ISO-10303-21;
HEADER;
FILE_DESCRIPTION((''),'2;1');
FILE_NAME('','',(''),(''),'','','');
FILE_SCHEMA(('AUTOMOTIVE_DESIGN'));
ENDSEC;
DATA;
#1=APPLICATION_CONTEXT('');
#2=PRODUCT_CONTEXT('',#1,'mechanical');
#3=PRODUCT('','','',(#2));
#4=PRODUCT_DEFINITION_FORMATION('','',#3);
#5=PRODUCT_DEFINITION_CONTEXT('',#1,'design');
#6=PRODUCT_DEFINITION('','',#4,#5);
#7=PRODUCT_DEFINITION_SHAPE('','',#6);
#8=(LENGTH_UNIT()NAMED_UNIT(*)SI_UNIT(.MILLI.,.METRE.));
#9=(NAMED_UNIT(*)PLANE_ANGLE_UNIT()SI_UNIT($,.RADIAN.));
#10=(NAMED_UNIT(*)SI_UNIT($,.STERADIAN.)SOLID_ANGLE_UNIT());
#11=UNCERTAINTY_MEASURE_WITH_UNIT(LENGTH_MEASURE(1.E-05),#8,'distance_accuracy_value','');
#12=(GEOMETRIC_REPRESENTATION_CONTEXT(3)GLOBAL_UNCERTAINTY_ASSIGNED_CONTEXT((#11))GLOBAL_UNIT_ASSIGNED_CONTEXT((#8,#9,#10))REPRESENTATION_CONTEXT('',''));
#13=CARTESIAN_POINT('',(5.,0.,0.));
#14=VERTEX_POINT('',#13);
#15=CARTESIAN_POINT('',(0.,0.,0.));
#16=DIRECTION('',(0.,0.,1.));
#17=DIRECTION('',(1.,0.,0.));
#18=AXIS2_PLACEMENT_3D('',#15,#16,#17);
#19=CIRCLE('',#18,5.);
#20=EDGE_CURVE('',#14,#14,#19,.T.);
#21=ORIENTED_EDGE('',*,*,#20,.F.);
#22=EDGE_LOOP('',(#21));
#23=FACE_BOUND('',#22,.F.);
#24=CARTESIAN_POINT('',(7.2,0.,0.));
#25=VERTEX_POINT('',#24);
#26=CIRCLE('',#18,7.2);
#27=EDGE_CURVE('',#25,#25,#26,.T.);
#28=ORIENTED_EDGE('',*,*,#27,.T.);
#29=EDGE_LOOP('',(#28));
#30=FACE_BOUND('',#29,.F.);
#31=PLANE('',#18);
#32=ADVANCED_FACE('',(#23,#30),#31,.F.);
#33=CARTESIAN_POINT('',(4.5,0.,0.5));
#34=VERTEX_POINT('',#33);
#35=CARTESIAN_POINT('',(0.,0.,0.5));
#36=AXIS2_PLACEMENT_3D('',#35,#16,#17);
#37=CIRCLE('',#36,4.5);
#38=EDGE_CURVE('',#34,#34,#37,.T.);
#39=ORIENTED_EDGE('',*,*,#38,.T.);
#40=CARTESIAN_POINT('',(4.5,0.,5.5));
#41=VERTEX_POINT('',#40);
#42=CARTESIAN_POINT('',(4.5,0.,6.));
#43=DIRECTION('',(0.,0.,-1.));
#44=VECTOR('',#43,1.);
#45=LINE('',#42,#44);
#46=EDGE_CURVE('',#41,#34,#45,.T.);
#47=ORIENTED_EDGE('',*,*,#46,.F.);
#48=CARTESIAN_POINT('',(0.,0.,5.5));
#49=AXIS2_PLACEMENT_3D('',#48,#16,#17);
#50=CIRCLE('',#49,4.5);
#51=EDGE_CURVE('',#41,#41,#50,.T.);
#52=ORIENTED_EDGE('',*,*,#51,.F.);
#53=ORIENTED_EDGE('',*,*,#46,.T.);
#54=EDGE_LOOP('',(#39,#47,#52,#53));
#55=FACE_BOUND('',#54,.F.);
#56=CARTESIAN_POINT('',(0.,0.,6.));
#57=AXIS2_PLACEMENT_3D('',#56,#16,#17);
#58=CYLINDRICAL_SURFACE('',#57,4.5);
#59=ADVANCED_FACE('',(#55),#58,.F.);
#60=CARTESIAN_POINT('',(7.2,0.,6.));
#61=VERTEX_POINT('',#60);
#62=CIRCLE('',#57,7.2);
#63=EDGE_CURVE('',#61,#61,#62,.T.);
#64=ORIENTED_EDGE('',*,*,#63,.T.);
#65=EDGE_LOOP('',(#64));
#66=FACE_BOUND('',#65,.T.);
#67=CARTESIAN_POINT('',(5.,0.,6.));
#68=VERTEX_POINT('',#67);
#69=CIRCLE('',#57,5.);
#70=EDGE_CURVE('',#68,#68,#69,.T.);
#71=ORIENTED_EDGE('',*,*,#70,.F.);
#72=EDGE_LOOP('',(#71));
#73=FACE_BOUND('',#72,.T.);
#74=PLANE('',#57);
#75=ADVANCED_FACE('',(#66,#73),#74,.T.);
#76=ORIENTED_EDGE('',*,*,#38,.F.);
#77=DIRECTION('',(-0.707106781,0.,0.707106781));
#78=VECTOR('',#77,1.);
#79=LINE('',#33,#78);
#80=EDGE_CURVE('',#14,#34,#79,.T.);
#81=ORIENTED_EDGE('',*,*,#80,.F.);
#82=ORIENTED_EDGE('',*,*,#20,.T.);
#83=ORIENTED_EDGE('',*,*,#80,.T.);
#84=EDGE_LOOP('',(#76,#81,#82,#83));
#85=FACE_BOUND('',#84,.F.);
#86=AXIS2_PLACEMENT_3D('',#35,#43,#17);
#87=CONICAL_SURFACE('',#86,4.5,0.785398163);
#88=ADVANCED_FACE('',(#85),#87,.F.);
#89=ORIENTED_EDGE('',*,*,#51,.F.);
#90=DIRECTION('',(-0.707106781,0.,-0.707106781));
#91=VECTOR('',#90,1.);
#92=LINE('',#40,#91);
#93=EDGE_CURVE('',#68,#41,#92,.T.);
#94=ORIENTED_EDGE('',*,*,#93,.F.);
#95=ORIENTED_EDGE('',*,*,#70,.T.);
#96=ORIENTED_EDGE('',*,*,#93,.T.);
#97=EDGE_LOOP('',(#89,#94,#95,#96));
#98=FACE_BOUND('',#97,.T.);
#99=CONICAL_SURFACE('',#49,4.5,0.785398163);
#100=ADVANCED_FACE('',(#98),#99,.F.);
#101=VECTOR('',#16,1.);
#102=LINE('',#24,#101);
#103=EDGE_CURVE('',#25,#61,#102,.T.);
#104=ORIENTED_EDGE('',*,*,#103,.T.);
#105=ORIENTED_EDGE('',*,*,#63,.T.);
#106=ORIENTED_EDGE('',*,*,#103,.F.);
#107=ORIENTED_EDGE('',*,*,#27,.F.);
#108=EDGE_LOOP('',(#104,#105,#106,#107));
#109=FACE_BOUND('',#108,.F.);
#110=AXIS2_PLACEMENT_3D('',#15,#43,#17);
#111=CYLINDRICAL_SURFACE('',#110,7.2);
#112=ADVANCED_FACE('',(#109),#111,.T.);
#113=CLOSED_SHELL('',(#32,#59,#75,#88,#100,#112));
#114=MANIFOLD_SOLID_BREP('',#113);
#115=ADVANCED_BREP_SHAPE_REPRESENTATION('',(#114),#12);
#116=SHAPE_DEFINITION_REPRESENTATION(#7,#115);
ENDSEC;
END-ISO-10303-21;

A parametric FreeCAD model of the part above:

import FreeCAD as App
import Part
import Sketcher

V = App.Vector


def edges_at(feature, points):
    """Names of the edges that pass closest to the given points."""
    edges = feature.Shape.Edges
    near = lambda p: min(range(len(edges)), key=lambda i: edges[i].distToShape(Part.Vertex(*p))[0])
    return sorted({f"Edge{near(p) + 1}" for p in points})

doc = App.newDocument("Part")
body = doc.addObject("PartDesign::Body", "Body")

sketch1 = doc.addObject("Sketcher::SketchObject", "Sketch")
body.addObject(sketch1)
sketch1.AttachmentSupport = (doc.XY_Plane, [""])
sketch1.MapMode = "FlatFace"
sketch1.addGeometry(Part.Circle(V(0, 0, 0), V(0, 0, 1), 7), False)
sketch1.addConstraint([
    Sketcher.Constraint("Coincident", 0, 3, -1, 1),
    Sketcher.Constraint("Diameter", 0, 14.4),
])
pad1 = doc.addObject("PartDesign::Pad", "Pad")
body.addObject(pad1)
pad1.Profile = sketch1
pad1.Length = 6

sketch2 = doc.addObject("Sketcher::SketchObject", "Sketch001")
body.addObject(sketch2)
sketch2.AttachmentSupport = (doc.XY_Plane, [""])
sketch2.MapMode = "FlatFace"
sketch2.AttachmentOffset = App.Placement(V(0, 0, 6), App.Rotation())
sketch2.addGeometry(Part.Circle(V(0, 0, 0), V(0, 0, 1), 4.5), False)
sketch2.addConstraint([
    Sketcher.Constraint("Coincident", 0, 3, -1, 1),
    Sketcher.Constraint("Diameter", 0, 9.0),
])
pocket1 = doc.addObject("PartDesign::Pocket", "Pocket")
body.addObject(pocket1)
pocket1.Profile = sketch2
pocket1.Type = "ThroughAll"
doc.recompute()

chamfer = doc.addObject("PartDesign::Chamfer", "Chamfer")
body.addObject(chamfer)
chamfer.Base = (pocket1, edges_at(pocket1, [(-4.5, 0, 6), (4.5, 0, 3), (-4.5, 0, 0)]))
chamfer.ChamferType = "Two distances"
chamfer.Size = 0.5
chamfer.Size2 = 0.5

doc.recompute()
